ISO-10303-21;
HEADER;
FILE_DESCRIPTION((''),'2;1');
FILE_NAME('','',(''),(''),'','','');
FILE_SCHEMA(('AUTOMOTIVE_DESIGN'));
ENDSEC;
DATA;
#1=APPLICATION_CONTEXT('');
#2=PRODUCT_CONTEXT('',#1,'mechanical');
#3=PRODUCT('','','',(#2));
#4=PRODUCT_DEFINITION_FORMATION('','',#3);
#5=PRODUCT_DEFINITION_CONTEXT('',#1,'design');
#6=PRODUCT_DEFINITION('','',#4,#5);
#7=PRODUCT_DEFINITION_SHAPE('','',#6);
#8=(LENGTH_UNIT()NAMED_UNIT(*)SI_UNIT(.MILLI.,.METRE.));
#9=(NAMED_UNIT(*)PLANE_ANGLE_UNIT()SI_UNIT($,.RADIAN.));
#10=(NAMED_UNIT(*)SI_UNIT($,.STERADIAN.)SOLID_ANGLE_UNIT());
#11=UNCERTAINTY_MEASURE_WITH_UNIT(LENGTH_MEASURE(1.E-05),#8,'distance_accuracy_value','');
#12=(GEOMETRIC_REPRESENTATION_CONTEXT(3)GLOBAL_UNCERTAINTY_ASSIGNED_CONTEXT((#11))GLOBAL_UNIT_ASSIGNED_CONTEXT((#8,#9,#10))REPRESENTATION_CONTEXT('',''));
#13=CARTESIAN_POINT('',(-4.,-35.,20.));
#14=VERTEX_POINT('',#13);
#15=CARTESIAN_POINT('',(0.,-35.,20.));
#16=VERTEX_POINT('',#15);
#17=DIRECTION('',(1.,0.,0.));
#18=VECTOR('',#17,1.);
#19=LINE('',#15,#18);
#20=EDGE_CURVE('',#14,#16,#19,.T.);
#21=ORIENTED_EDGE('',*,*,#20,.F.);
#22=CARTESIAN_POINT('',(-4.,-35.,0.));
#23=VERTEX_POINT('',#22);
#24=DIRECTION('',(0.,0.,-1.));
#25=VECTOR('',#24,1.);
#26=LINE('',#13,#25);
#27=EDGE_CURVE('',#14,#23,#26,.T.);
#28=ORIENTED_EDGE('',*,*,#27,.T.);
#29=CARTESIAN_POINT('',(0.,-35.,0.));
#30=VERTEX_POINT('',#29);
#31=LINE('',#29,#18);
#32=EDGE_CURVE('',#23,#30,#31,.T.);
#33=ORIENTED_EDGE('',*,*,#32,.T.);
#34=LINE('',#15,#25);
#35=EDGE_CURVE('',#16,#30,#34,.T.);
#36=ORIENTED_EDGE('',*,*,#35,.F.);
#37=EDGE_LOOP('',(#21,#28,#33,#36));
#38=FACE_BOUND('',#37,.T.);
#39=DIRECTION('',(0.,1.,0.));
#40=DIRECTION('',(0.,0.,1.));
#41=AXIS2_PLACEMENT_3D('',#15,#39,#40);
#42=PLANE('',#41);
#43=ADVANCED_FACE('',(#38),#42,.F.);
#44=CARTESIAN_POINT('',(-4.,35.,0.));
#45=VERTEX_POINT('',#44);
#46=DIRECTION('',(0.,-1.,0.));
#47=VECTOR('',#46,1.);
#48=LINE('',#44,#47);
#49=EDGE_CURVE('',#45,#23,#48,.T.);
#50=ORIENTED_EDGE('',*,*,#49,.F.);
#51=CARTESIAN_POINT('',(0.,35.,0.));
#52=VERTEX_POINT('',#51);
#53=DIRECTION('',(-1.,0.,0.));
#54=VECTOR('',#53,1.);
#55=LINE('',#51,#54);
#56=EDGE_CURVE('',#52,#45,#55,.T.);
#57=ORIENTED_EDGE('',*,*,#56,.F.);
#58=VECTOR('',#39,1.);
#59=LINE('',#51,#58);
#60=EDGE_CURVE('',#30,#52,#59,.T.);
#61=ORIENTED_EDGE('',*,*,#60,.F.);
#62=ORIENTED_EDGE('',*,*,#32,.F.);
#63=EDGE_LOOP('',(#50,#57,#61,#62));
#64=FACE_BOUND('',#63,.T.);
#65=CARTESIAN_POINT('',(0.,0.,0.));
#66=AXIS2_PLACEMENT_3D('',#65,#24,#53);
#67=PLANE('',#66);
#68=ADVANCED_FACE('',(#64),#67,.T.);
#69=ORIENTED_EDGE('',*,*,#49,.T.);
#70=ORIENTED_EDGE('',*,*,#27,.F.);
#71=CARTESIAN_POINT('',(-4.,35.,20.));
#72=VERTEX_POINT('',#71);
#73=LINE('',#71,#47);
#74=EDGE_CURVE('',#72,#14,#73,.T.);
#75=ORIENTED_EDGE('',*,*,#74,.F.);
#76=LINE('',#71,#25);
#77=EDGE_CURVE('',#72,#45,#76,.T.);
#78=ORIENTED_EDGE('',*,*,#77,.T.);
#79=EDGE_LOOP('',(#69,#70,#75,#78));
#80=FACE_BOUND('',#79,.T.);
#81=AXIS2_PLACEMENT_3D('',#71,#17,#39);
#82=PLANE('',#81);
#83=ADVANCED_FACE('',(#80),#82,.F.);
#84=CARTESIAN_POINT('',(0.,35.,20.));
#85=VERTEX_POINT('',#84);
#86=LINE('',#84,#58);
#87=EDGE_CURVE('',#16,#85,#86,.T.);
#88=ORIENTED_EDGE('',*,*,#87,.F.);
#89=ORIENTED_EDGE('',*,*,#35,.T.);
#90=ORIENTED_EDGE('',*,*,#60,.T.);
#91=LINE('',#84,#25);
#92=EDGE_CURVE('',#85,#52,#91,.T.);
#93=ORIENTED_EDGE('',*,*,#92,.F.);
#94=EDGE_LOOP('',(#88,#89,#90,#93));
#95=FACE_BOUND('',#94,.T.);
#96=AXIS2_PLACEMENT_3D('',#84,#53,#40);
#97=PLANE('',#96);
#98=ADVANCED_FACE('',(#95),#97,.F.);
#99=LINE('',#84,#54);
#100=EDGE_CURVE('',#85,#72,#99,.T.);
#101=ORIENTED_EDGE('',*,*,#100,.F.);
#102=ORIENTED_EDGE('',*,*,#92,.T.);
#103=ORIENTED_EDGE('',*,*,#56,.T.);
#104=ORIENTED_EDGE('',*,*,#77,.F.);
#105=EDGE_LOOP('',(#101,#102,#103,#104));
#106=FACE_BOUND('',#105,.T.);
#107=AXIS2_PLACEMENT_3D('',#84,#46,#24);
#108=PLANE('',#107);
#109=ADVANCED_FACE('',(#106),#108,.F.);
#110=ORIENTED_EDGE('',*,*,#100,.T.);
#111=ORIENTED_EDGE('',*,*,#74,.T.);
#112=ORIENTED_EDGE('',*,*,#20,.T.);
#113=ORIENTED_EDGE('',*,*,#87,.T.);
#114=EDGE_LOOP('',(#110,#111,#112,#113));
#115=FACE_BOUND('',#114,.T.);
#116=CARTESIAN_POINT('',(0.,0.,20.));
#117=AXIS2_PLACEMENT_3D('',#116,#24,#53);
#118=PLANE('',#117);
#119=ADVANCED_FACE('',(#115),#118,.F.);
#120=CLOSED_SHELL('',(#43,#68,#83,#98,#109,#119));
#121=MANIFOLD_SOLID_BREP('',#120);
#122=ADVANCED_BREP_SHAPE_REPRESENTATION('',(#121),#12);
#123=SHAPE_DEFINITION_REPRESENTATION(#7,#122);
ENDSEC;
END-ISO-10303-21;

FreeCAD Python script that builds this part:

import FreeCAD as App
import Part
import Sketcher

V = App.Vector
Q = App.Units.Quantity

doc = App.newDocument("Part")
body = doc.addObject("PartDesign::Body", "Body")

sketch1 = body.newObject("Sketcher::SketchObject", "Sketch")
sketch1.AttachmentSupport = (doc.getObject("XY_Plane"), [""])
sketch1.MapMode = "FlatFace"
sketch1.addGeometry([
    Part.LineSegment(V(-4, 35, 0), V(-4, -35, 0)),
    Part.LineSegment(V(-4, -35, 0), V(0, -35, 0)),
    Part.LineSegment(V(0, -35, 0), V(0, 35, 0)),
    Part.LineSegment(V(0, 35, 0), V(-4, 35, 0)),
], False)
sketch1.addConstraint([
    Sketcher.Constraint("Coincident", 0, 2, 1, 1),
    Sketcher.Constraint("Coincident", 1, 2, 2, 1),
    Sketcher.Constraint("Coincident", 2, 2, 3, 1),
    Sketcher.Constraint("Coincident", 3, 2, 0, 1),
    Sketcher.Constraint("Vertical", 0),
    Sketcher.Constraint("Horizontal", 1),
    Sketcher.Constraint("Vertical", 2),
    Sketcher.Constraint("Horizontal", 3),
    Sketcher.Constraint("Symmetric", 1, 2, 2, 2, -1, 1),
    Sketcher.Constraint("DistanceX", 1, 1, 1, 2, Q("4 mm")),
    Sketcher.Constraint("DistanceY", 0, 2, 0, 1, Q("70 mm")),
])
pad1 = body.newObject("PartDesign::Pad", "Pad")
pad1.Profile = sketch1
pad1.Length = 20

doc.recompute()
